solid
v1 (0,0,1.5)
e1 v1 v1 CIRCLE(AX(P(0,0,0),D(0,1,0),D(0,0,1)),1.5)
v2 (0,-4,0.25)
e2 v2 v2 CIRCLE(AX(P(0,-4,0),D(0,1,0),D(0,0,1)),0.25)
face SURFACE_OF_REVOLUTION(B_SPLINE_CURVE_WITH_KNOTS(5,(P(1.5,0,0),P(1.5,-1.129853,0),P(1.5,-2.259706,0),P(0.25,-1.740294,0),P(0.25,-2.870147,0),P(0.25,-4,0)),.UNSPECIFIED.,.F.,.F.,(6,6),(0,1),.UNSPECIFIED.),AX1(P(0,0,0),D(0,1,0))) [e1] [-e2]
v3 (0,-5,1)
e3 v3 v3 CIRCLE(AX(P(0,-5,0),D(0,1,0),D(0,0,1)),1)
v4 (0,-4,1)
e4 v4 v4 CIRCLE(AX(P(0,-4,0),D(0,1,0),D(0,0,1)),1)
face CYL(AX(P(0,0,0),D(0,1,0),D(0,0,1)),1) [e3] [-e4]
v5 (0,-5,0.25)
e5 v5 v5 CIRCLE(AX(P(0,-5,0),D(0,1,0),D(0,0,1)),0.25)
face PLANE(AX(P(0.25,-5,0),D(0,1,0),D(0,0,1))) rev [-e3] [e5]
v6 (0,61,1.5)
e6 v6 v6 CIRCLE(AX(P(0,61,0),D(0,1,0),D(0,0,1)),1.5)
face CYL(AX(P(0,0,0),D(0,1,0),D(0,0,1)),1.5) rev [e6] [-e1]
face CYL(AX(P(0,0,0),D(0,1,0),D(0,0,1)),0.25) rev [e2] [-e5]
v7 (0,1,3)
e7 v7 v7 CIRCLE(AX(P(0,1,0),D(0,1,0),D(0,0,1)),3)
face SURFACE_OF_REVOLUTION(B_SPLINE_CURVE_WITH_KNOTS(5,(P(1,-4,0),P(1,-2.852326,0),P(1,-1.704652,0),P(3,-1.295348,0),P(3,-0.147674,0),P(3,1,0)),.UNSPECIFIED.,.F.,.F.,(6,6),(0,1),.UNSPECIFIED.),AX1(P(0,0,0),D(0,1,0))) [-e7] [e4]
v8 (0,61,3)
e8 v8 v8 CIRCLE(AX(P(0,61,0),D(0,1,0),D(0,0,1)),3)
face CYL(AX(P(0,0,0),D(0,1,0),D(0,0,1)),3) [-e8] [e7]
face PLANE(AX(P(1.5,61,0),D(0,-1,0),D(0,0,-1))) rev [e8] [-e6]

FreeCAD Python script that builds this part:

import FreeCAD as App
import Part
import Sketcher

doc = App.newDocument("Part")
body = doc.addObject("PartDesign::Body", "Body")

# Sketch on XY plane
sketch1 = body.newObject("Sketcher::SketchObject", "Sketch")
sketch1.AttachmentSupport = (doc.getObject("XY_Plane"), [""])
sketch1.MapMode = "FlatFace"
sketch1.addGeometry(Part.LineSegment(App.Vector(3, 61, 0), App.Vector(1.5, 61, 0)), False)
sketch1.addGeometry(Part.LineSegment(App.Vector(1.5, 61, 0), App.Vector(1.5, 0, 0)), False)
sketch1.addGeometry(Part.BSplineCurve([App.Vector(0.25, -4, 0), App.Vector(0.25, -2.870147, 0), App.Vector(0.25, -1.740294, 0), App.Vector(1.5, -2.259706, 0), App.Vector(1.5, -1.129853, 0), App.Vector(1.5, 0, 0)], [6, 6], [0, 1], False, 5, [1, 1, 1, 1, 1, 1], False), False)
sketch1.addGeometry(Part.LineSegment(App.Vector(0.25, -4, 0), App.Vector(0.25, -5, 0)), False)
sketch1.addGeometry(Part.LineSegment(App.Vector(0.25, -5, 0), App.Vector(1, -5, 0)), False)
sketch1.addGeometry(Part.LineSegment(App.Vector(1, -5, 0), App.Vector(1, -4, 0)), False)
sketch1.addGeometry(Part.BSplineCurve([App.Vector(1, -4, 0), App.Vector(1, -2.852326, 0), App.Vector(1, -1.704652, 0), App.Vector(3, -1.295348, 0), App.Vector(3, -0.147674, 0), App.Vector(3, 1, 0)], [6, 6], [0, 1], False, 5, [1, 1, 1, 1, 1, 1], False), False)
sketch1.addGeometry(Part.LineSegment(App.Vector(3, 1, 0), App.Vector(3, 61, 0)), False)
sketch1.addConstraint(Sketcher.Constraint("Block", 2))
sketch1.addConstraint(Sketcher.Constraint("Block", 6))
sketch1.addConstraint(Sketcher.Constraint("Coincident", 0, 2, 1, 1))
sketch1.addConstraint(Sketcher.Constraint("Coincident", 1, 2, 2, 2))
sketch1.addConstraint(Sketcher.Constraint("Coincident", 2, 1, 3, 1))
sketch1.addConstraint(Sketcher.Constraint("Coincident", 3, 2, 4, 1))
sketch1.addConstraint(Sketcher.Constraint("Coincident", 4, 2, 5, 1))
sketch1.addConstraint(Sketcher.Constraint("Coincident", 5, 2, 6, 1))
sketch1.addConstraint(Sketcher.Constraint("Coincident", 6, 2, 7, 1))
sketch1.addConstraint(Sketcher.Constraint("Coincident", 7, 2, 0, 1))
sketch1.addConstraint(Sketcher.Constraint("Horizontal", 0))
sketch1.addConstraint(Sketcher.Constraint("Vertical", 1))
sketch1.addConstraint(Sketcher.Constraint("Vertical", 3))
sketch1.addConstraint(Sketcher.Constraint("Horizontal", 4))
sketch1.addConstraint(Sketcher.Constraint("Vertical", 5))
sketch1.addConstraint(Sketcher.Constraint("Vertical", 7))
sketch1.addConstraint(Sketcher.Constraint("DistanceY", 1, 2, 1, 1, 61.0))
sketch1.addConstraint(Sketcher.Constraint("DistanceY", 3, 2, 3, 1, 1.0))
revolution = body.newObject("PartDesign::Revolution", "Revolution")
revolution.Profile = sketch1
revolution.ReferenceAxis = (sketch1, ["V_Axis"])
revolution.Angle = 360

doc.recompute()
